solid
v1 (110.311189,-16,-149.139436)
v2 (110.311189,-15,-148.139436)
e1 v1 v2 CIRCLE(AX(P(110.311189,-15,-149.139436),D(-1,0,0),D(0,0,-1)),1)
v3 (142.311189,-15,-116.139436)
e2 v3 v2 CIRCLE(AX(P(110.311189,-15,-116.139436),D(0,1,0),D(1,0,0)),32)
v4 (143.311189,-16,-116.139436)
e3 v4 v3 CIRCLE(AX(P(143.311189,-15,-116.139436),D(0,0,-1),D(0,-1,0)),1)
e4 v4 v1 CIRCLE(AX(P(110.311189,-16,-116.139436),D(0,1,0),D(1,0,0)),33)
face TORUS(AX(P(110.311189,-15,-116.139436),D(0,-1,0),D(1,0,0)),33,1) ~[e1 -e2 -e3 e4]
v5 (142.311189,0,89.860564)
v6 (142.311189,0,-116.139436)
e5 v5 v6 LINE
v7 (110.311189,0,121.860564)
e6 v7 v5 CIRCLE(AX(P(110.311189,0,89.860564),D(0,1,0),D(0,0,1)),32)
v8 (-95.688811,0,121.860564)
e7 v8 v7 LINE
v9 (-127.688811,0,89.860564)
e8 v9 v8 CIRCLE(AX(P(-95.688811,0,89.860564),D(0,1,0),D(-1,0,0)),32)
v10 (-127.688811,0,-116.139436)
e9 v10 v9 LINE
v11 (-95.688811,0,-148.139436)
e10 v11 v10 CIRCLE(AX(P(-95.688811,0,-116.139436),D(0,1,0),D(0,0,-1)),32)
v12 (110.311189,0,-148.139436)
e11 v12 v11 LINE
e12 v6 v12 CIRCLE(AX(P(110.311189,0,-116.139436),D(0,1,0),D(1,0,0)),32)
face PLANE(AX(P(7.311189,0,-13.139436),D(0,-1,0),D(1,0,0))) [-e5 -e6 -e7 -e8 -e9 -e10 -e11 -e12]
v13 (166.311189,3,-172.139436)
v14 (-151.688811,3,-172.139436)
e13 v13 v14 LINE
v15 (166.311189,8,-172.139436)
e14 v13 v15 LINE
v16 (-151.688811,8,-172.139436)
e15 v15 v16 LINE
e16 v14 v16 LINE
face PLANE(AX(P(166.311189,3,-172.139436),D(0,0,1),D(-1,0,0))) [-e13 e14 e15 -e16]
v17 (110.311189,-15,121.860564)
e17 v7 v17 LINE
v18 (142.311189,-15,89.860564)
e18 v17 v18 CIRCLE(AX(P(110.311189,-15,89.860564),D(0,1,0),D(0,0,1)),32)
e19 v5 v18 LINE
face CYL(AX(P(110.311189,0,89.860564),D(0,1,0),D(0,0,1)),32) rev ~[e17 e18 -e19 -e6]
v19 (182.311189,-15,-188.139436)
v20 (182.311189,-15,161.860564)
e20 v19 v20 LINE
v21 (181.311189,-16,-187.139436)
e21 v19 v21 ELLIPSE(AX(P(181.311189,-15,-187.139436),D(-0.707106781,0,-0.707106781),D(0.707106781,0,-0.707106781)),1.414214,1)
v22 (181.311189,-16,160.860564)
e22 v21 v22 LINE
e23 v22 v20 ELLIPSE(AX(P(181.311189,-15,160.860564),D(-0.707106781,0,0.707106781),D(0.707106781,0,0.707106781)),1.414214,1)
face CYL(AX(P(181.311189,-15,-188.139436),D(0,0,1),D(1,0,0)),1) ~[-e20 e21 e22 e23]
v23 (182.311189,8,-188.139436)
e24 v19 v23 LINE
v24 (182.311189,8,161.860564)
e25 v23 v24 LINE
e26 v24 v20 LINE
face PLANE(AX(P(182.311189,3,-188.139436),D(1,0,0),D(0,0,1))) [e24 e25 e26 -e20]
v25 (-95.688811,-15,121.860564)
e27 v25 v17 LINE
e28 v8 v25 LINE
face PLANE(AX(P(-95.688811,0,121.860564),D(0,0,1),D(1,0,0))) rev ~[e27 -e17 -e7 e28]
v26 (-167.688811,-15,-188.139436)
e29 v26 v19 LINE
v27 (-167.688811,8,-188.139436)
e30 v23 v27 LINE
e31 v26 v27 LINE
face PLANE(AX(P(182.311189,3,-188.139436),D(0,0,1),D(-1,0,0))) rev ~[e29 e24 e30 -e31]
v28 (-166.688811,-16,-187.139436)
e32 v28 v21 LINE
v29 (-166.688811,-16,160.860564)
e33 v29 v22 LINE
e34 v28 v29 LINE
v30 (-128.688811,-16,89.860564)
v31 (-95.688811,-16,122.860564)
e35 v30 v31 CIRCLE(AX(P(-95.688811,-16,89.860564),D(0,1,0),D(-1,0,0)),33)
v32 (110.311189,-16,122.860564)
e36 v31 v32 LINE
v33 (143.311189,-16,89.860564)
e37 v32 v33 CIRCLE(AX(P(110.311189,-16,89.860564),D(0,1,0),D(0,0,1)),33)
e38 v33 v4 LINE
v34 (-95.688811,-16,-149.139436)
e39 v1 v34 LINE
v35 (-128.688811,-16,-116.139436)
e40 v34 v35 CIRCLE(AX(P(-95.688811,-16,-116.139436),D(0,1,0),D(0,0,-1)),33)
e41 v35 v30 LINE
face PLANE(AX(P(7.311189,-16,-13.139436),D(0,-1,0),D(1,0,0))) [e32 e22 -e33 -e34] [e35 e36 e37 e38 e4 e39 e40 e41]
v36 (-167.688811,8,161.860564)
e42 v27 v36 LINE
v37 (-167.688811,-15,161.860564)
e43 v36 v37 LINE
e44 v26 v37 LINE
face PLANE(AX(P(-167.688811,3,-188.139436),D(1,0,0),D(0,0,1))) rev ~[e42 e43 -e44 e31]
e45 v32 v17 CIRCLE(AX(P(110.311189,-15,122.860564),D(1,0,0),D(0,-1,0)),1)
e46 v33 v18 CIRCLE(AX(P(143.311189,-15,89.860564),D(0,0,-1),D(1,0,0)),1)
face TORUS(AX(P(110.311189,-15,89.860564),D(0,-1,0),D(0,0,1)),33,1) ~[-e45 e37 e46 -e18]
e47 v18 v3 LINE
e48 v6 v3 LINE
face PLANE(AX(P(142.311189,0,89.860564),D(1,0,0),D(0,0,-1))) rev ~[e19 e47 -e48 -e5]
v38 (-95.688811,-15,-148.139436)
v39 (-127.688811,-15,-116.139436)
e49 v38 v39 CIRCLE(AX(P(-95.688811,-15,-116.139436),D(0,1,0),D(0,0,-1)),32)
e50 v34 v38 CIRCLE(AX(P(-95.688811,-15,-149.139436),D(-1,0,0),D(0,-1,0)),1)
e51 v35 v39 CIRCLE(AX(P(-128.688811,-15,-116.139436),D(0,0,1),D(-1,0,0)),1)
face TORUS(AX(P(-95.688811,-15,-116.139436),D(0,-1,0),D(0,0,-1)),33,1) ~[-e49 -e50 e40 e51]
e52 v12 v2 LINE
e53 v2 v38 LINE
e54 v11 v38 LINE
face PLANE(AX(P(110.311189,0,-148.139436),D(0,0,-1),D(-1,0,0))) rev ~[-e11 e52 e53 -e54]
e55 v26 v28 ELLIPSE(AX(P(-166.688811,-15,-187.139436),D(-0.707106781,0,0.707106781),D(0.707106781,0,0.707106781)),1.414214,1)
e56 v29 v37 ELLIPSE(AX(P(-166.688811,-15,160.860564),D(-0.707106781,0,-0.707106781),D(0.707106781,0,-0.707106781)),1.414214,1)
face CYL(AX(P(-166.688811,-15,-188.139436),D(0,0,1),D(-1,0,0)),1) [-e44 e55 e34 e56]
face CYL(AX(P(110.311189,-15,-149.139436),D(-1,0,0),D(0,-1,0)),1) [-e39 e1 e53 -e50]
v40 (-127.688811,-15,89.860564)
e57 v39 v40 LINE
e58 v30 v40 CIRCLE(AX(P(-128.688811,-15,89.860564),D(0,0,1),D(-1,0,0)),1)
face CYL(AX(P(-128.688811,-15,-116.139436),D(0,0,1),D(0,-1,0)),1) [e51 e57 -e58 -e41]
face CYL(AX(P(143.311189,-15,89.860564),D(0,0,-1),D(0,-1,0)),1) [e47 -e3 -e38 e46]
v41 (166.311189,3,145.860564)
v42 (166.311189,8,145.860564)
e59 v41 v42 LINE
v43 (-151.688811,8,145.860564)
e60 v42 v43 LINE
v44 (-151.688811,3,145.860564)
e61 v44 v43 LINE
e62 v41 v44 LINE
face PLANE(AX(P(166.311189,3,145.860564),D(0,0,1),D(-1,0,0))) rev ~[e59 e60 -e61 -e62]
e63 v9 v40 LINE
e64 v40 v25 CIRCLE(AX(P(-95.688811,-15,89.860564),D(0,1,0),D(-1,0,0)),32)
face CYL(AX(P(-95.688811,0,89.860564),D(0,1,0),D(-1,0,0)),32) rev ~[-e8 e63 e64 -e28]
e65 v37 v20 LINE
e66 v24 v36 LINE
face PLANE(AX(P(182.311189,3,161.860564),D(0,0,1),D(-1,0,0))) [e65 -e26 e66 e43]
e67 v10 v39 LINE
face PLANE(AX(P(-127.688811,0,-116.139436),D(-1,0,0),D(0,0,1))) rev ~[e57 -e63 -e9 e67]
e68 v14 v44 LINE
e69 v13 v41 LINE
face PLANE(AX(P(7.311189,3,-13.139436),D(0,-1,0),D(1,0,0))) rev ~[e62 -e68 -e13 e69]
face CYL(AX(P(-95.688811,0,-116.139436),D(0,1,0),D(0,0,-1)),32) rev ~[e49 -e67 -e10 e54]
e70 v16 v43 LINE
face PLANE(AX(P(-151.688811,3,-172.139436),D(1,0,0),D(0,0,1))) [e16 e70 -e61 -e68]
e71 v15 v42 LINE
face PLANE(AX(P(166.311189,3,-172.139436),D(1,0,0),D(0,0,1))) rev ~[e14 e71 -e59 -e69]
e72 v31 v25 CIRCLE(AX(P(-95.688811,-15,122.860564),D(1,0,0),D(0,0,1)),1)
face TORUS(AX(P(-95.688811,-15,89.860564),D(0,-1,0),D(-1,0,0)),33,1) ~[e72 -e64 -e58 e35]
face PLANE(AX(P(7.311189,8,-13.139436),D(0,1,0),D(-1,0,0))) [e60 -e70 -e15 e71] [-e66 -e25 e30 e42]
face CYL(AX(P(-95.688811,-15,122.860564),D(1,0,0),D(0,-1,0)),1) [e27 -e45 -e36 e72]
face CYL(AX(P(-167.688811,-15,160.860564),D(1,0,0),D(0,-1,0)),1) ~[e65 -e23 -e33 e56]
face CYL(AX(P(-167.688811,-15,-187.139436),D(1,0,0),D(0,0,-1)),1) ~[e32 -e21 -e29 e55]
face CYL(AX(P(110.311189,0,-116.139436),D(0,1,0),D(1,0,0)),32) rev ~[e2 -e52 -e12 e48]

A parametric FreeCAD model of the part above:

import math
import FreeCAD as App
import Part
import Sketcher
from FreeCAD import Vector
Q = App.Units.Quantity


def edges_at(feature, points):
    """Names of the edges that pass closest to the given points."""
    edges = feature.Shape.Edges
    near = lambda p: min(range(len(edges)), key=lambda i: edges[i].distToShape(Part.Vertex(*p))[0])
    return sorted({f"Edge{near(p) + 1}" for p in points})


def add_polygon(sketch, points):
    """Adds a closed chain of lines whose ends are joined by coincident constraints."""
    first, n = sketch.GeometryCount, len(points)
    for a, b in zip(points, points[1:] + points[:1]):
        sketch.addGeometry(Part.LineSegment(App.Vector(*a, 0), App.Vector(*b, 0)), False)
    for i in range(n):
        sketch.addConstraint(Sketcher.Constraint("Coincident", first + i, 2, first + (i + 1) % n, 1))

doc = App.newDocument("Part")
body = doc.addObject("PartDesign::Body", "Body")

sketch1 = doc.addObject("Sketcher::SketchObject", "Sketch")
body.addObject(sketch1)
sketch1.AttachmentSupport = (doc.XZ_Plane, [""])
sketch1.MapMode = "FlatFace"
add_polygon(sketch1, [(-168, 162), (-168, -188), (182, -188), (182, 162)])
sketch1.addGeometry(Part.LineSegment(Vector(-128, -116, 0), Vector(-128, 90, 0)), False)
sketch1.addGeometry(Part.ArcOfCircle(Part.Circle(Vector(-96, 90, 0), Vector(0, 0, 1), 32), math.radians(90), math.radians(180)), False)
sketch1.addGeometry(Part.LineSegment(Vector(-96, 122, 0), Vector(110, 122, 0)), False)
sketch1.addGeometry(Part.ArcOfCircle(Part.Circle(Vector(110, 90, 0), Vector(0, 0, 1), 32), math.radians(0), math.radians(90)), False)
sketch1.addGeometry(Part.LineSegment(Vector(142, 90, 0), Vector(142, -116, 0)), False)
sketch1.addGeometry(Part.ArcOfCircle(Part.Circle(Vector(110, -116, 0), Vector(0, 0, 1), 32), math.radians(-90), math.radians(0)), False)
sketch1.addGeometry(Part.LineSegment(Vector(110, -148, 0), Vector(-96, -148, 0)), False)
sketch1.addGeometry(Part.ArcOfCircle(Part.Circle(Vector(-96, -116, 0), Vector(0, 0, 1), 32), math.radians(180), math.radians(270)), False)
sketch1.addConstraint([
    Sketcher.Constraint("Tangent", 4, 2, 5, 2),
    Sketcher.Constraint("Tangent", 5, 1, 6, 1),
    Sketcher.Constraint("Tangent", 6, 2, 7, 2),
    Sketcher.Constraint("Tangent", 7, 1, 8, 1),
    Sketcher.Constraint("Tangent", 8, 2, 9, 2),
    Sketcher.Constraint("Tangent", 9, 1, 10, 1),
    Sketcher.Constraint("Tangent", 10, 2, 11, 2),
    Sketcher.Constraint("Tangent", 11, 1, 4, 1),
    Sketcher.Constraint("Vertical", 0),
    Sketcher.Constraint("Horizontal", 1),
    Sketcher.Constraint("Vertical", 2),
    Sketcher.Constraint("Horizontal", 3),
    Sketcher.Constraint("Vertical", 4),
    Sketcher.Constraint("Horizontal", 6),
    Sketcher.Constraint("Vertical", 8),
    Sketcher.Constraint("Horizontal", 10),
    Sketcher.Constraint("Equal", 5, 7),
    Sketcher.Constraint("Equal", 7, 9),
    Sketcher.Constraint("Equal", 9, 11),
    Sketcher.Constraint("Equal", 3, 0),
    Sketcher.Constraint("Equal", 10, 4),
    Sketcher.Constraint("Radius", 5, Q("32 mm")),
    Sketcher.Constraint("DistanceX", 1, 1, 1, 2, Q("350 mm")),
    Sketcher.Constraint("DistanceX", 6, 1, 6, 2, Q("206 mm")),
    Sketcher.Constraint("DistanceX", 0, 2, 11, 3, Q("72 mm")),
    Sketcher.Constraint("DistanceY", 0, 2, 11, 3, Q("72 mm")),
    Sketcher.Constraint("DistanceX", 5, 3, -1, 1, Q("95.688811 mm")),
    Sketcher.Constraint("DistanceY", -1, 1, 5, 3, Q("89.860564 mm")),
])
pad1 = doc.addObject("PartDesign::Pad", "Pad")
body.addObject(pad1)
pad1.Profile = sketch1
pad1.Length = 16

sketch2 = doc.addObject("Sketcher::SketchObject", "Sketch001")
body.addObject(sketch2)
sketch2.AttachmentSupport = (doc.XZ_Plane, [""])
sketch2.MapMode = "FlatFace"
add_polygon(sketch2, [(-168, 162), (-168, -188), (182, -188), (182, 162)])
sketch2.addConstraint([
    Sketcher.Constraint("Vertical", 0),
    Sketcher.Constraint("Horizontal", 1),
    Sketcher.Constraint("Vertical", 2),
    Sketcher.Constraint("Horizontal", 3),
    Sketcher.Constraint("Equal", 3, 0),
    Sketcher.Constraint("DistanceX", 1, 1, 1, 2, Q("350 mm")),
    Sketcher.Constraint("DistanceX", 0, 2, -1, 1, Q("167.688811 mm")),
    Sketcher.Constraint("DistanceY", 0, 2, -1, 1, Q("188.139436 mm")),
])
pad2 = doc.addObject("PartDesign::Pad", "Pad001")
body.addObject(pad2)
pad2.Profile = sketch2
pad2.Length = 3
pad2.Reversed = True

sketch3 = doc.addObject("Sketcher::SketchObject", "Sketch002")
body.addObject(sketch3)
sketch3.AttachmentSupport = (doc.XZ_Plane, [""])
sketch3.MapMode = "FlatFace"
sketch3.AttachmentOffset = App.Placement(Vector(0, 0, -3), App.Rotation())
add_polygon(sketch3, [(182, 162), (182, -188), (-168, -188), (-168, 162)])
add_polygon(sketch3, [(-152, -172), (166, -172), (166, 146), (-152, 146)])
sketch3.addConstraint([
    Sketcher.Constraint("Vertical", 0),
    Sketcher.Constraint("Horizontal", 1),
    Sketcher.Constraint("Vertical", 2),
    Sketcher.Constraint("Horizontal", 3),
    Sketcher.Constraint("Horizontal", 4),
    Sketcher.Constraint("Vertical", 5),
    Sketcher.Constraint("Horizontal", 6),
    Sketcher.Constraint("Vertical", 7),
    Sketcher.Constraint("Equal", 3, 0),
    Sketcher.Constraint("Equal", 6, 5),
    Sketcher.Constraint("DistanceX", 1, 2, 1, 1, Q("350 mm")),
    Sketcher.Constraint("DistanceX", 4, 1, 4, 2, Q("318 mm")),
    Sketcher.Constraint("DistanceX", 4, 2, 0, 2, Q("16 mm")),
    Sketcher.Constraint("DistanceY", 0, 2, 4, 2, Q("16 mm")),
    Sketcher.Constraint("DistanceX", -1, 1, 0, 2, Q("182.311189 mm")),
    Sketcher.Constraint("DistanceY", 0, 2, -1, 1, Q("188.139436 mm")),
])
pad3 = doc.addObject("PartDesign::Pad", "Pad002")
body.addObject(pad3)
pad3.Profile = sketch3
pad3.Length = 5
pad3.Reversed = True
doc.recompute()

fillet = doc.addObject("PartDesign::Fillet", "Fillet")
body.addObject(fillet)
fillet.Base = (pad3, edges_at(pad3, [
    (7.311, -16, 161.861),
    (-167.689, -16, -13.139),
    (7.311, -16, -188.139),
    (182.311, -16, -13.139),
    (-118.316, -16, 112.488),
    (7.311, -16, 121.861),
    (132.939, -16, 112.488),
    (142.311, -16, -13.139),
    (132.939, -16, -138.767),
    (7.311, -16, -148.139),
    (-118.316, -16, -138.767),
    (-127.689, -16, -13.139),
]))
fillet.Radius = 1

doc.recompute()
